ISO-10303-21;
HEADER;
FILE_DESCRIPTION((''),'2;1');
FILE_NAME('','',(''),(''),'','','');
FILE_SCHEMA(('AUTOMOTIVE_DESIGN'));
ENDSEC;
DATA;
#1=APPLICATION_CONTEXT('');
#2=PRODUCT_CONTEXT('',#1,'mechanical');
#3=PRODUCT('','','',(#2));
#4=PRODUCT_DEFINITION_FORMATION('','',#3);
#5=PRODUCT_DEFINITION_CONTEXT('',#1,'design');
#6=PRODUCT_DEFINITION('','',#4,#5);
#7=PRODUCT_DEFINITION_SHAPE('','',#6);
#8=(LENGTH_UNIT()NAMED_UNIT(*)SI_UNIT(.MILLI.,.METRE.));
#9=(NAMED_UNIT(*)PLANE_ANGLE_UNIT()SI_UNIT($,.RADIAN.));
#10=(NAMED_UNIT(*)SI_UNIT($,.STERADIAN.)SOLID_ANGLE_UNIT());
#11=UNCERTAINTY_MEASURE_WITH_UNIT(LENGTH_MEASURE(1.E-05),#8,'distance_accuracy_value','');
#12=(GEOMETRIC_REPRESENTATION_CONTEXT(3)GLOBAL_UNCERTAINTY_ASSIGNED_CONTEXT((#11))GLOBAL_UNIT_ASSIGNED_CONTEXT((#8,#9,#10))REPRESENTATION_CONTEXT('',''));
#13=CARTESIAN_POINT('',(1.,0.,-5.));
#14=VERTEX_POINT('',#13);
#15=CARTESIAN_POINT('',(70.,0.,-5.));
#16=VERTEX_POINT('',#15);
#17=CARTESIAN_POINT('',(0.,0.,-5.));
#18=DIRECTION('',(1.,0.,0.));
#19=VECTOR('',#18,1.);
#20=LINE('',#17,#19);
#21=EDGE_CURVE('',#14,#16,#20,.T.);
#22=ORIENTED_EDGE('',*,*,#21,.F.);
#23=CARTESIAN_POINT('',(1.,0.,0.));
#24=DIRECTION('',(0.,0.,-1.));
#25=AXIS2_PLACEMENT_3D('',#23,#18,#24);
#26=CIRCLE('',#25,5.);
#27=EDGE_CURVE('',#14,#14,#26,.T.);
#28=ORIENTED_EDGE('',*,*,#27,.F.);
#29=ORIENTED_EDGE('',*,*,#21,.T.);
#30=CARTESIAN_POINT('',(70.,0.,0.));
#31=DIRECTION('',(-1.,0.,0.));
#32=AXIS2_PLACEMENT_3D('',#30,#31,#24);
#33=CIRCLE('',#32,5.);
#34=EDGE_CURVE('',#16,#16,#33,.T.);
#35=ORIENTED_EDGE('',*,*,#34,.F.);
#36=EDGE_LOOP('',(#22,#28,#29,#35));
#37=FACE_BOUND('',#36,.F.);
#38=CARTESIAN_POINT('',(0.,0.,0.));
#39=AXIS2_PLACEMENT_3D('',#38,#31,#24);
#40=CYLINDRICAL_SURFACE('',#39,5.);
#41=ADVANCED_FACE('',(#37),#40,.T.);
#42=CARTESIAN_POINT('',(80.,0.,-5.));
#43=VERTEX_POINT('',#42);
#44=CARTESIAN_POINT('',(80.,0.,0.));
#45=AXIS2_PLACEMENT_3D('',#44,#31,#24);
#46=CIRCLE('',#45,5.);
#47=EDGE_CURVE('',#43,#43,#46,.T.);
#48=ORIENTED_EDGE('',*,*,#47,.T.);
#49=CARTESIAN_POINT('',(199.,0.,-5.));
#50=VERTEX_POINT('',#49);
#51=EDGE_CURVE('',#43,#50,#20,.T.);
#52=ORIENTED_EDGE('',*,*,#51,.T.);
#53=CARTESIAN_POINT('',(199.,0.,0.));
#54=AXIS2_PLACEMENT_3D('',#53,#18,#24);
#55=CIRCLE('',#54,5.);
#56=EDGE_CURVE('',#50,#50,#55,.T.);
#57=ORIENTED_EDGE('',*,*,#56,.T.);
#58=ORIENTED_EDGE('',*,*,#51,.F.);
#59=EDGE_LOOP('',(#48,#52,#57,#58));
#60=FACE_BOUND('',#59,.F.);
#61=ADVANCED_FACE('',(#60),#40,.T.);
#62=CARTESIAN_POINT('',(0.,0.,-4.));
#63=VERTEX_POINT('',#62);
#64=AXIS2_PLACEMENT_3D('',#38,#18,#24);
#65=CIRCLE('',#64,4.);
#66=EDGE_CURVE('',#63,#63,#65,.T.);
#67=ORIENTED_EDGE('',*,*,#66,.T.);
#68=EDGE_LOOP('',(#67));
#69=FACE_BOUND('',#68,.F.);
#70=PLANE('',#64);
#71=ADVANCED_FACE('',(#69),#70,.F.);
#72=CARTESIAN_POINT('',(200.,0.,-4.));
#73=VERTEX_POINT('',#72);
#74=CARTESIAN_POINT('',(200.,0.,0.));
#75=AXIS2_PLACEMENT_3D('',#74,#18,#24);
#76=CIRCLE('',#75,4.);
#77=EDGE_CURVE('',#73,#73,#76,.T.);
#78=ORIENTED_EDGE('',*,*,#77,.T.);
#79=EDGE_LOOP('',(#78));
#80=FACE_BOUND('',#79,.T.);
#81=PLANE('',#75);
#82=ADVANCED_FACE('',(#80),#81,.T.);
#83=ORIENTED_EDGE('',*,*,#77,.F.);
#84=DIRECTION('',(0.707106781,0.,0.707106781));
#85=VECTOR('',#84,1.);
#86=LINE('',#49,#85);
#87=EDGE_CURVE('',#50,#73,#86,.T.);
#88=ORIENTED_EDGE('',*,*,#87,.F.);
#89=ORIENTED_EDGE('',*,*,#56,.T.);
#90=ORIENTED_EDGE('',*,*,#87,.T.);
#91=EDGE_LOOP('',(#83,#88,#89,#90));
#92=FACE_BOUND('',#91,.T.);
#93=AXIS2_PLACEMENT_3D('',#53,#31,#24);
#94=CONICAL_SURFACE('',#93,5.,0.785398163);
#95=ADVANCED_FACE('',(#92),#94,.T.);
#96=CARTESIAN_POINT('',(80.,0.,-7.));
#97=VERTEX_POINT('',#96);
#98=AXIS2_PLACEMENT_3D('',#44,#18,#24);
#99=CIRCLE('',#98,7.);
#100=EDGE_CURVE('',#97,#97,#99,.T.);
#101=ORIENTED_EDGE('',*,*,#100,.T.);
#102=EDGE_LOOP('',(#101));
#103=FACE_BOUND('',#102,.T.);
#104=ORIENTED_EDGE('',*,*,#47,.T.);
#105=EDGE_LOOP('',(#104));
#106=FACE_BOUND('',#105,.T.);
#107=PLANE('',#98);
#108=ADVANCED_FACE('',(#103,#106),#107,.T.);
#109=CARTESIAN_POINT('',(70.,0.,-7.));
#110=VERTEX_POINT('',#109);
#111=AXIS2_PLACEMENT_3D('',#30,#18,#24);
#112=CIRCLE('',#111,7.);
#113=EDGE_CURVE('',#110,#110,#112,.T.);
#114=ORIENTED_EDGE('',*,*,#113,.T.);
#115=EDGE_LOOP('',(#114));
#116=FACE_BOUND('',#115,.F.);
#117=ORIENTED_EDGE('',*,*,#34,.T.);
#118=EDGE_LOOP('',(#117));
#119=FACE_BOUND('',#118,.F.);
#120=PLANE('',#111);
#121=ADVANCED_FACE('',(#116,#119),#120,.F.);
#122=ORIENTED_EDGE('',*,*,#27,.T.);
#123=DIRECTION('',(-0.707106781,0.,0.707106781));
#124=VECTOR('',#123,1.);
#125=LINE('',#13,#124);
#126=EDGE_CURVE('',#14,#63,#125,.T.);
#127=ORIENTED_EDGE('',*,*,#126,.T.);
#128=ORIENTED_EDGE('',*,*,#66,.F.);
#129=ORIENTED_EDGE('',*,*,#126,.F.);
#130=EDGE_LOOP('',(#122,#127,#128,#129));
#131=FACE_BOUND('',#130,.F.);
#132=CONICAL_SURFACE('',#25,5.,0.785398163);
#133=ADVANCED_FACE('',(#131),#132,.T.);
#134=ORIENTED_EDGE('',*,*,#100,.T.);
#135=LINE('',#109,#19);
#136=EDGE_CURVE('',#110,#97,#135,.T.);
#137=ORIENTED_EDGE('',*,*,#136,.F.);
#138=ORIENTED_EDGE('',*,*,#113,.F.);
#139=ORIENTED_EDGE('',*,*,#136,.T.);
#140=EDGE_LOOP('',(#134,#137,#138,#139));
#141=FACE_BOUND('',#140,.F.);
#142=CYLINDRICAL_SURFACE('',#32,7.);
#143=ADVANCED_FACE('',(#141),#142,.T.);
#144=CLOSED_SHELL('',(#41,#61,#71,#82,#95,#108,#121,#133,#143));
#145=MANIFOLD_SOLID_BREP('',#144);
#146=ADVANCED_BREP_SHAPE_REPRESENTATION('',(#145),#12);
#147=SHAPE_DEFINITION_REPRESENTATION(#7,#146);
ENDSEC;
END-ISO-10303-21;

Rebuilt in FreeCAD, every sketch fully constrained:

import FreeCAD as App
import Part
import Sketcher

V = App.Vector
Q = App.Units.Quantity


def edges_at(feature, points):
    """Names of the edges that pass closest to the given points."""
    edges = feature.Shape.Edges
    near = lambda p: min(range(len(edges)), key=lambda i: edges[i].distToShape(Part.Vertex(*p))[0])
    return sorted({f"Edge{near(p) + 1}" for p in points})

doc = App.newDocument("Part")
body = doc.addObject("PartDesign::Body", "Body")

sketch1 = body.newObject("Sketcher::SketchObject", "Sketch")
sketch1.AttachmentSupport = (doc.getObject("YZ_Plane"), [""])
sketch1.MapMode = "FlatFace"
sketch1.addGeometry(Part.Circle(V(0, 0, 0), V(0, 0, 1), 5), False)
sketch1.addConstraint([
    Sketcher.Constraint("Coincident", 0, 3, -1, 1),
    Sketcher.Constraint("Diameter", 0, Q("10 mm")),
])
pad1 = body.newObject("PartDesign::Pad", "Pad")
pad1.Profile = sketch1
pad1.Length = 200
doc.recompute()

chamfer = body.newObject("PartDesign::Chamfer", "Chamfer")
chamfer.Base = (pad1, edges_at(pad1, [(0, 0, 5), (200, 0, 5)]))
chamfer.Size = 1

sketch2 = body.newObject("Sketcher::SketchObject", "Sketch001")
sketch2.AttachmentSupport = (doc.getObject("YZ_Plane"), [""])
sketch2.MapMode = "FlatFace"
sketch2.AttachmentOffset = App.Placement(V(0, 0, 70), App.Rotation())
sketch2.addGeometry(Part.Circle(V(0, 0, 0), V(0, 0, 1), 7), False)
sketch2.addConstraint([
    Sketcher.Constraint("Coincident", 0, 3, -1, 1),
    Sketcher.Constraint("Diameter", 0, Q("14 mm")),
])
pad2 = body.newObject("PartDesign::Pad", "Pad001")
pad2.Profile = sketch2
pad2.Length = 10

doc.recompute()
